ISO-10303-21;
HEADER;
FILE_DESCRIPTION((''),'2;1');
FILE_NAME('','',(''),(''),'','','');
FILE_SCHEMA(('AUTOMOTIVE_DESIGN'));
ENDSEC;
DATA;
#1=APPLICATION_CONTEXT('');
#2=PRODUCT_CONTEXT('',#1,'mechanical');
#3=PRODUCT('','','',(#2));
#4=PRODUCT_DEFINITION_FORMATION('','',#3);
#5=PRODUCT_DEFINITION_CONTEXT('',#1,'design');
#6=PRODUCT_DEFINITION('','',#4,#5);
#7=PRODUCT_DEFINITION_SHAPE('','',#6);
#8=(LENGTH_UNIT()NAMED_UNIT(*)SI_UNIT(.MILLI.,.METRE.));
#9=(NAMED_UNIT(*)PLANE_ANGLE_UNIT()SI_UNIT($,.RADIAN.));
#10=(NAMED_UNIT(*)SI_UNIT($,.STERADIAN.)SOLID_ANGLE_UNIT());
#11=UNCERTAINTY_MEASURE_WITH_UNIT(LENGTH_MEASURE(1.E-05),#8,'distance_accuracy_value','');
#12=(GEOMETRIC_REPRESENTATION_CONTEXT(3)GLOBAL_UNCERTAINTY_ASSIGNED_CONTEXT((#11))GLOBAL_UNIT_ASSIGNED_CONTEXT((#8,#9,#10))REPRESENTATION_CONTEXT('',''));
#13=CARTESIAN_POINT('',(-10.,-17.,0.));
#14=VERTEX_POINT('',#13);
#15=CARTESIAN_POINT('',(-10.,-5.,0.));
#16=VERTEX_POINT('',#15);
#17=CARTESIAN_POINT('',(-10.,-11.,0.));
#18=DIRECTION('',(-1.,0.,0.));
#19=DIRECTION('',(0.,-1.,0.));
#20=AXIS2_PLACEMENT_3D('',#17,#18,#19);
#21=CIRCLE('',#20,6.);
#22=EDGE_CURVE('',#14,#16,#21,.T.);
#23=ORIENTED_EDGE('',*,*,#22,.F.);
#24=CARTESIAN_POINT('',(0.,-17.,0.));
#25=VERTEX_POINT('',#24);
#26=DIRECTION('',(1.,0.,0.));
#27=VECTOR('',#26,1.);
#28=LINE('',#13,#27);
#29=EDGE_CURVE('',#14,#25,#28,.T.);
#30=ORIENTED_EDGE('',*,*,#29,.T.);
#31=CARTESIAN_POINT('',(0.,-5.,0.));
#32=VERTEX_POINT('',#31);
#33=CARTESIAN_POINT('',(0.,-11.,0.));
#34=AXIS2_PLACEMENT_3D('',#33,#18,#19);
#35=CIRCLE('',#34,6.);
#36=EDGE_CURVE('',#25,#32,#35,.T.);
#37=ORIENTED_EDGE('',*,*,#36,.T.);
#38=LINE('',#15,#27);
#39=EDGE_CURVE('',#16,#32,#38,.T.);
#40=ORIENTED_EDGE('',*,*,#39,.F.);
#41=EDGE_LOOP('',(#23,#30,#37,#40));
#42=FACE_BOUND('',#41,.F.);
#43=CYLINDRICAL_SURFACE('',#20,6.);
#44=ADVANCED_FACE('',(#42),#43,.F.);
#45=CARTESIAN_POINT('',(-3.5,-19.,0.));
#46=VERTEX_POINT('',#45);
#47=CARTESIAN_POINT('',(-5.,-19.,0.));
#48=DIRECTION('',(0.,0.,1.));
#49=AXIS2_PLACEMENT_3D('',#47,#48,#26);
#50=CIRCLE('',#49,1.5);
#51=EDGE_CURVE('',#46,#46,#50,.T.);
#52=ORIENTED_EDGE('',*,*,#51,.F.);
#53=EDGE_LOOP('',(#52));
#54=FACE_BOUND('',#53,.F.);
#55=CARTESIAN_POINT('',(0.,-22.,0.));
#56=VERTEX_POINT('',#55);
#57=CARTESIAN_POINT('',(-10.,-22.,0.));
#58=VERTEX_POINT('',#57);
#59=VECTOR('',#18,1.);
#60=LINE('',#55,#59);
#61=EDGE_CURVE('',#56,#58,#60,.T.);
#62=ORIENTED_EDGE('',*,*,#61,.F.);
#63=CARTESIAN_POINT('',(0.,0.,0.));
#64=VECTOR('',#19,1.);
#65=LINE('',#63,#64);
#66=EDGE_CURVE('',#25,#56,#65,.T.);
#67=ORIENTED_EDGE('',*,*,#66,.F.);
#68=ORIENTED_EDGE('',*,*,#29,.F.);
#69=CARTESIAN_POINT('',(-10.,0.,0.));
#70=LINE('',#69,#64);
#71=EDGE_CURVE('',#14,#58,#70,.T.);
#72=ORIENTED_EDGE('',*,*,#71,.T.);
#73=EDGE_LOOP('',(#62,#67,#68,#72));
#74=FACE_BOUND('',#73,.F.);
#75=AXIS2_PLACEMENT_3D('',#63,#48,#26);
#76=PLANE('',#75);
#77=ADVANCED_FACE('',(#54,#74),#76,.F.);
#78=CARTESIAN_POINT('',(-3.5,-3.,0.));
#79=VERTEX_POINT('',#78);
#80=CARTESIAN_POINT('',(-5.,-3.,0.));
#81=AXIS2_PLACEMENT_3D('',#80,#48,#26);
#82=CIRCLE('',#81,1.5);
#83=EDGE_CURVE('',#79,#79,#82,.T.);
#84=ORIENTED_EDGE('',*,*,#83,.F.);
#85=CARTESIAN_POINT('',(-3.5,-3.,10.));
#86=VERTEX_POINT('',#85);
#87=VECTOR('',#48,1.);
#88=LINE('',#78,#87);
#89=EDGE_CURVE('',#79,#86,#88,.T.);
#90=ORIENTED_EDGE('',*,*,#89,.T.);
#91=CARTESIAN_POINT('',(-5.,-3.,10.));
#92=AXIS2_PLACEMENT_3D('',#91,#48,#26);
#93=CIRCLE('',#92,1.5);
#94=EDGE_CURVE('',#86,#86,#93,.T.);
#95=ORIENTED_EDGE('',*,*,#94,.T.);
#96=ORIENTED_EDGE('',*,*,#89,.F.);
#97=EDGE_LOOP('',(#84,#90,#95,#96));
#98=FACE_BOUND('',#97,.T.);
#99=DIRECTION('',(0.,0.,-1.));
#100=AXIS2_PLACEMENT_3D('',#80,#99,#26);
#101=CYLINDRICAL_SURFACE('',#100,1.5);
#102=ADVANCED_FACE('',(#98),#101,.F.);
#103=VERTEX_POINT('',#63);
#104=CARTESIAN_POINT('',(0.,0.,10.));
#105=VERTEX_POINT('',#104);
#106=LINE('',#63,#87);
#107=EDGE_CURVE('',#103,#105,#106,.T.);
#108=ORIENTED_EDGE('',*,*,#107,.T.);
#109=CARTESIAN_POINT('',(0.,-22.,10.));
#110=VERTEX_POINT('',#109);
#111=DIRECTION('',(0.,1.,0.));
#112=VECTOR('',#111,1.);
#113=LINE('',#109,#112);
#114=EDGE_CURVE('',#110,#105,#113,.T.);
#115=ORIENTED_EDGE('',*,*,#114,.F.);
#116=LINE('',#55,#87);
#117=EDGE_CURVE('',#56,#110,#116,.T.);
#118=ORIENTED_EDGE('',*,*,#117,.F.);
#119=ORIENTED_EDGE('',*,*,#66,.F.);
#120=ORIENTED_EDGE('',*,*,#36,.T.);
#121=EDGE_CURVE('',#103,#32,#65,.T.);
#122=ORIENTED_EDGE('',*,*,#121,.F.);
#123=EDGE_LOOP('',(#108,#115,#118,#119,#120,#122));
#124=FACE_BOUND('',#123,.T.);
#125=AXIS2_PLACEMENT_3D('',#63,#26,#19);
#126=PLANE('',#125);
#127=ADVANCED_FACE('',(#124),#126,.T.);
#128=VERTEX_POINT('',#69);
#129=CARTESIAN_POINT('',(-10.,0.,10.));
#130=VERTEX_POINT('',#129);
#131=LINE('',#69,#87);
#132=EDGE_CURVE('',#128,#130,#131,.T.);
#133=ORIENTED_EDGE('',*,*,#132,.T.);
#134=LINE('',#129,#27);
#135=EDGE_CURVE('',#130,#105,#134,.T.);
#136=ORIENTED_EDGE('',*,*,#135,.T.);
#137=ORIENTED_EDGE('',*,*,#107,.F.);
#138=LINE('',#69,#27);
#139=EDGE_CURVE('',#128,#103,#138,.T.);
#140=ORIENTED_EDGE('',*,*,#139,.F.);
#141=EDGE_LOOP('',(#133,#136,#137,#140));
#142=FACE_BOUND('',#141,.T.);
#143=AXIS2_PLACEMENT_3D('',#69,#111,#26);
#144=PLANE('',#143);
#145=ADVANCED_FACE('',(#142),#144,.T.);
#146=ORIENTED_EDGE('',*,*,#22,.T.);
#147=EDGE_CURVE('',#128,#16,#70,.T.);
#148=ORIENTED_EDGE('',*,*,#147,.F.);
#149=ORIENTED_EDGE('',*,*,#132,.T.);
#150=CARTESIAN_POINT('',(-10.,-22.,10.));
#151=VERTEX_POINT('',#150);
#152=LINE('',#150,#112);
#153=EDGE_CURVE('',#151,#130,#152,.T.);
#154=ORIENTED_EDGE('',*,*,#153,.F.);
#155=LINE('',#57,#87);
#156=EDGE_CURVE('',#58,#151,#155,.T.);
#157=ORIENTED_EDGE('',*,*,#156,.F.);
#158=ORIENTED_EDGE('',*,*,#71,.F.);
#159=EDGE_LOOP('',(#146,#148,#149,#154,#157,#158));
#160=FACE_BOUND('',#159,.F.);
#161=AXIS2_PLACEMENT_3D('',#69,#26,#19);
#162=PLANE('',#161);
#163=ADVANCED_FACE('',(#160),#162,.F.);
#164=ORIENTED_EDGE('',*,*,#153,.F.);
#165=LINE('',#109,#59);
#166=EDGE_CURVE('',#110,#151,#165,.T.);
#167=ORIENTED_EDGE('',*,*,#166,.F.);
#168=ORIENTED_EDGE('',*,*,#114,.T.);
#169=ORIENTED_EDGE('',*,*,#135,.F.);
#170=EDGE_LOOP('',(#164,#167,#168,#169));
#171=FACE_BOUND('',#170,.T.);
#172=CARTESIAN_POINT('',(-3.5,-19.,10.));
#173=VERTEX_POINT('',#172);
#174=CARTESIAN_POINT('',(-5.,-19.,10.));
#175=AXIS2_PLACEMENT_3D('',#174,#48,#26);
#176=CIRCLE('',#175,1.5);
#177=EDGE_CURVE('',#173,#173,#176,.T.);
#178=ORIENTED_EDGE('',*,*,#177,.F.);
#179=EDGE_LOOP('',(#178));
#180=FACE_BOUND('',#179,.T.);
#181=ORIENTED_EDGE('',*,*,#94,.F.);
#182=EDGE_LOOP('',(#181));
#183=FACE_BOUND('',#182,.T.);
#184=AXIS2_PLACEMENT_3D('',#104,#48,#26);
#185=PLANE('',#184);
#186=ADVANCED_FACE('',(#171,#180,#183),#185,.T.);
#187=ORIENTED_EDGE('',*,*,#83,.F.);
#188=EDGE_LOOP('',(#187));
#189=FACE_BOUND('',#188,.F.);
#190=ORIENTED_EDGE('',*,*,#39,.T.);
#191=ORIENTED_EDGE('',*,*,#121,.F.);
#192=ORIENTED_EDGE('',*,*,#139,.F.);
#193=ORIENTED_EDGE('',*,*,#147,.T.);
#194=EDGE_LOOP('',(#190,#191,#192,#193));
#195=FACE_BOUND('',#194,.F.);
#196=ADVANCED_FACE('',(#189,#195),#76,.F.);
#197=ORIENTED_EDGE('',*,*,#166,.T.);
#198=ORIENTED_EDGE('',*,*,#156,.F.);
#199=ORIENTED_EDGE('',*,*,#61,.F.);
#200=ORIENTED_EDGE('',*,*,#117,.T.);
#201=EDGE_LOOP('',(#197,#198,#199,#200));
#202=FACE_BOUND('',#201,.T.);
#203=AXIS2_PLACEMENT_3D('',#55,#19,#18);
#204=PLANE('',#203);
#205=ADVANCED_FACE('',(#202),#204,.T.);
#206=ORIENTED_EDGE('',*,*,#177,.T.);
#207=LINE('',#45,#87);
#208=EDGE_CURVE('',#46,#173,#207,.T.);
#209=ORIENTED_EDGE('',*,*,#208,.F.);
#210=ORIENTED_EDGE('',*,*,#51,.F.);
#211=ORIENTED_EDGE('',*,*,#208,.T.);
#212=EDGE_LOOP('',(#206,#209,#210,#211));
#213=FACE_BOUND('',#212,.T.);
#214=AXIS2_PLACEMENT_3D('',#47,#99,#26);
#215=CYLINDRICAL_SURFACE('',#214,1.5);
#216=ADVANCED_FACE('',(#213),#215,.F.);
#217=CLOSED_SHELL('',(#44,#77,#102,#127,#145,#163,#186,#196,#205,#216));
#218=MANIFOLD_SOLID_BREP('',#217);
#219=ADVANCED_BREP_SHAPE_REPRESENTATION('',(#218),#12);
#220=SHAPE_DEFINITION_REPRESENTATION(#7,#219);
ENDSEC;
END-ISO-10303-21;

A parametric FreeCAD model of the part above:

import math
import FreeCAD as App
import Part
import Sketcher

V = App.Vector
Q = App.Units.Quantity


def add_polygon(sketch, points):
    """Adds a closed chain of lines whose ends are joined by coincident constraints."""
    first, n = sketch.GeometryCount, len(points)
    for a, b in zip(points, points[1:] + points[:1]):
        sketch.addGeometry(Part.LineSegment(App.Vector(*a, 0), App.Vector(*b, 0)), False)
    for i in range(n):
        sketch.addConstraint(Sketcher.Constraint("Coincident", first + i, 2, first + (i + 1) % n, 1))

doc = App.newDocument("Part")
body = doc.addObject("PartDesign::Body", "Body")

# Sketch on XY plane
sketch1 = body.newObject("Sketcher::SketchObject", "Sketch")
sketch1.AttachmentSupport = (doc.getObject("XY_Plane"), [""])
sketch1.MapMode = "FlatFace"
add_polygon(sketch1, [(-10, 0), (-10, -22), (0, -22), (0, 0)])  # lines 0-3
sketch1.addGeometry(Part.Circle(V(-5, -3, 0), V(0, 0, 1), 1.5), False)  # 4
sketch1.addGeometry(Part.Circle(V(-5, -19, 0), V(0, 0, 1), 1.5), False)  # 5
sketch1.addConstraint(Sketcher.Constraint("Vertical", 0))
sketch1.addConstraint(Sketcher.Constraint("Horizontal", 1))
sketch1.addConstraint(Sketcher.Constraint("Vertical", 2))
sketch1.addConstraint(Sketcher.Constraint("Horizontal", 3))
sketch1.addConstraint(Sketcher.Constraint("Coincident", 2, 2, -1, 1))
sketch1.addConstraint(Sketcher.Constraint("Equal", 4, 5))
sketch1.addConstraint(Sketcher.Constraint("Vertical", 4, 3, 5, 3))
sketch1.addConstraint(Sketcher.Constraint("Diameter", 4, Q("3 mm")))
sketch1.addConstraint(Sketcher.Constraint("DistanceX", 1, 1, 1, 2, Q("10 mm")))
sketch1.addConstraint(Sketcher.Constraint("DistanceY", 0, 2, 0, 1, Q("22 mm")))
sketch1.addConstraint(Sketcher.Constraint("DistanceX", 4, 3, -1, 1, Q("5 mm")))
sketch1.addConstraint(Sketcher.Constraint("DistanceY", 4, 3, -1, 1, Q("3 mm")))
sketch1.addConstraint(Sketcher.Constraint("DistanceY", 5, 3, -1, 1, Q("19 mm")))
pad1 = body.newObject("PartDesign::Pad", "Pad")
pad1.Profile = sketch1
pad1.Length = 10

# Sketch on YZ plane
sketch2 = body.newObject("Sketcher::SketchObject", "Sketch001")
sketch2.AttachmentSupport = (doc.getObject("YZ_Plane"), [""])
sketch2.MapMode = "FlatFace"
sketch2.AttachmentOffset = App.Placement(V(0, 0, -10), App.Rotation())
sketch2.addGeometry(Part.ArcOfCircle(Part.Circle(V(-11, 0, 0), V(0, 0, 1), 6), math.radians(0), math.radians(180)), False)
sketch2.addGeometry(Part.LineSegment(V(-5, 0, 0), V(-17, 0, 0)), False)
sketch2.addConstraint(Sketcher.Constraint("Coincident", 0, 1, 1, 1))
sketch2.addConstraint(Sketcher.Constraint("Coincident", 1, 2, 0, 2))
sketch2.addConstraint(Sketcher.Constraint("Horizontal", 1))
sketch2.addConstraint(Sketcher.Constraint("PointOnObject", 0, 3, -1))
sketch2.addConstraint(Sketcher.Constraint("PointOnObject", 0, 1, -1))
sketch2.addConstraint(Sketcher.Constraint("Radius", 0, Q("6 mm")))
sketch2.addConstraint(Sketcher.Constraint("DistanceX", 0, 3, -1, 1, Q("11 mm")))
pocket1 = body.newObject("PartDesign::Pocket", "Pocket")
pocket1.Profile = sketch2
pocket1.Length = 10
pocket1.Reversed = True

doc.recompute()
